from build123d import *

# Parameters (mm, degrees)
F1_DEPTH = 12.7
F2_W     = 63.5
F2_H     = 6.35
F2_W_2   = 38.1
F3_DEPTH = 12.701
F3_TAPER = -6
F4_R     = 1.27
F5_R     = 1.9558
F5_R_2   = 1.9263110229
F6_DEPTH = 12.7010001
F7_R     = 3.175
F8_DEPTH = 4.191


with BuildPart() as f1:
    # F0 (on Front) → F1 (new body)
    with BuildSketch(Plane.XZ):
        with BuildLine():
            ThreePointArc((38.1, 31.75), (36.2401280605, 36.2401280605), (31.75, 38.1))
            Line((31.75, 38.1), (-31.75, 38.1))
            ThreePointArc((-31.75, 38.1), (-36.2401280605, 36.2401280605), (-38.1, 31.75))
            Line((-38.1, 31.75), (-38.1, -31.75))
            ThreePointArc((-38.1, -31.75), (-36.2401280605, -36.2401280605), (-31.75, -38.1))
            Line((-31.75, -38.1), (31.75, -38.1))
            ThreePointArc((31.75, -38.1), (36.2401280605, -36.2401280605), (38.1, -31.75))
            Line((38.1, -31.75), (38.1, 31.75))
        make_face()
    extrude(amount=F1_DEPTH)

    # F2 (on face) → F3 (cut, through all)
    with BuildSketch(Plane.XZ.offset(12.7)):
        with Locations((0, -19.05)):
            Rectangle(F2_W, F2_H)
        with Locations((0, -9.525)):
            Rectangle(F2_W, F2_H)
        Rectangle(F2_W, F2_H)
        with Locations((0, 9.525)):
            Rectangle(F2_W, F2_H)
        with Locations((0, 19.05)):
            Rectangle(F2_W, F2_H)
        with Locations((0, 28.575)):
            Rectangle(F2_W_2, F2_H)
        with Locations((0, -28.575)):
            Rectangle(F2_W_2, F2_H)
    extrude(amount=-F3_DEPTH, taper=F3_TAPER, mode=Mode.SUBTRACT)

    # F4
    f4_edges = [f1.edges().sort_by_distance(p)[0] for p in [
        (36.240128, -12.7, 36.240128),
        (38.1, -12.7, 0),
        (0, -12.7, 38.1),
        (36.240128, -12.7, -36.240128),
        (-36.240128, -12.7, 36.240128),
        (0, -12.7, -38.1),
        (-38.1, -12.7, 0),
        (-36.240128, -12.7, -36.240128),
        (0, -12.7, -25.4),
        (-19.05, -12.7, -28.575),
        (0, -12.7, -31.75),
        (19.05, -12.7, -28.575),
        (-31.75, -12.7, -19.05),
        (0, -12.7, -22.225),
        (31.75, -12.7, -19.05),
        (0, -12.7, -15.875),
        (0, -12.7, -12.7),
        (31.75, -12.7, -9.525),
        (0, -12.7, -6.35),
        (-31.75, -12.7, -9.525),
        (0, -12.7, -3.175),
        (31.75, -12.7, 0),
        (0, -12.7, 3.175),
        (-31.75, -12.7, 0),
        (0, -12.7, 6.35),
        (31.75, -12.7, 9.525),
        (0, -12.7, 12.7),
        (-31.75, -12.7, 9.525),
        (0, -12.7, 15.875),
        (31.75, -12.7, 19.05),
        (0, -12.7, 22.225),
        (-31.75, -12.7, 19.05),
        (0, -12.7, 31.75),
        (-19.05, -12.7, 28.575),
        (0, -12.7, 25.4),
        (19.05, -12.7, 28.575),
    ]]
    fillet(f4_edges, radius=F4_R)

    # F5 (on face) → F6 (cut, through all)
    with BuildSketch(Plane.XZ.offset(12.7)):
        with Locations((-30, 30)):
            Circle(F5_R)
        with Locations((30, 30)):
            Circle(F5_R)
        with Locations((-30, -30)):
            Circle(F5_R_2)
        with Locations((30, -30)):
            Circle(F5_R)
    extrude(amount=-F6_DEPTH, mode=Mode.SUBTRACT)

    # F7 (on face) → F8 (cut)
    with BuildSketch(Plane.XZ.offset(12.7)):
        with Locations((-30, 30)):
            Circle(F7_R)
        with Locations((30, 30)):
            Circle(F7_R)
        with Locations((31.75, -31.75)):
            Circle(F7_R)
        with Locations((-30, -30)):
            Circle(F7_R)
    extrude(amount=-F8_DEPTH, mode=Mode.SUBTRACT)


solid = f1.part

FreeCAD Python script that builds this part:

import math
import FreeCAD as App
import Part
import Sketcher
from FreeCAD import Vector
Q = App.Units.Quantity


def edges_at(feature, points):
    """Names of the edges that pass closest to the given points."""
    edges = feature.Shape.Edges
    near = lambda p: min(range(len(edges)), key=lambda i: edges[i].distToShape(Part.Vertex(*p))[0])
    return sorted({f"Edge{near(p) + 1}" for p in points})


def add_polygon(sketch, points):
    """Adds a closed chain of lines whose ends are joined by coincident constraints."""
    first, n = sketch.GeometryCount, len(points)
    for a, b in zip(points, points[1:] + points[:1]):
        sketch.addGeometry(Part.LineSegment(App.Vector(*a, 0), App.Vector(*b, 0)), False)
    for i in range(n):
        sketch.addConstraint(Sketcher.Constraint("Coincident", first + i, 2, first + (i + 1) % n, 1))

doc = App.newDocument("Part")
body = doc.addObject("PartDesign::Body", "Body")

sketch1 = doc.addObject("Sketcher::SketchObject", "Sketch")
body.addObject(sketch1)
sketch1.AttachmentSupport = (doc.XZ_Plane, [""])
sketch1.MapMode = "FlatFace"
sketch1.addGeometry([
    Part.ArcOfCircle(Part.Circle(Vector(32, 32, 0), Vector(0, 0, 1), 6), math.radians(0), math.radians(90)),
    Part.LineSegment(Vector(32, 38, 0), Vector(-32, 38, 0)),
    Part.ArcOfCircle(Part.Circle(Vector(-32, 32, 0), Vector(0, 0, 1), 6), math.radians(90), math.radians(180)),
    Part.LineSegment(Vector(-38, 32, 0), Vector(-38, -32, 0)),
    Part.ArcOfCircle(Part.Circle(Vector(-32, -32, 0), Vector(0, 0, 1), 6), math.radians(180), math.radians(270)),
    Part.LineSegment(Vector(-32, -38, 0), Vector(32, -38, 0)),
    Part.ArcOfCircle(Part.Circle(Vector(32, -32, 0), Vector(0, 0, 1), 6), math.radians(-90), math.radians(0)),
    Part.LineSegment(Vector(38, -32, 0), Vector(38, 32, 0)),
], False)
sketch1.addConstraint([
    Sketcher.Constraint("Tangent", 0, 2, 1, 1),
    Sketcher.Constraint("Tangent", 1, 2, 2, 1),
    Sketcher.Constraint("Tangent", 2, 2, 3, 1),
    Sketcher.Constraint("Tangent", 3, 2, 4, 1),
    Sketcher.Constraint("Tangent", 4, 2, 5, 1),
    Sketcher.Constraint("Tangent", 5, 2, 6, 1),
    Sketcher.Constraint("Tangent", 6, 2, 7, 1),
    Sketcher.Constraint("Tangent", 7, 2, 0, 1),
    Sketcher.Constraint("Horizontal", 1),
    Sketcher.Constraint("Vertical", 3),
    Sketcher.Constraint("Horizontal", 5),
    Sketcher.Constraint("Vertical", 7),
    Sketcher.Constraint("Equal", 0, 2),
    Sketcher.Constraint("Equal", 2, 4),
    Sketcher.Constraint("Equal", 4, 6),
    Sketcher.Constraint("Symmetric", 0, 3, 4, 3, -1, 1),
    Sketcher.Constraint("Equal", 5, 3),
    Sketcher.Constraint("Radius", 0, Q("0.25 in")),
    Sketcher.Constraint("DistanceX", 1, 2, 1, 1, Q("2.5 in")),
])
pad1 = doc.addObject("PartDesign::Pad", "Pad")
body.addObject(pad1)
pad1.Profile = sketch1
pad1.Length = Q("0.5 in")

sketch2 = doc.addObject("Sketcher::SketchObject", "Sketch001")
body.addObject(sketch2)
sketch2.AttachmentSupport = (doc.XZ_Plane, [""])
sketch2.MapMode = "FlatFace"
sketch2.AttachmentOffset = App.Placement(Vector(0, 0, 0.5 * 25.4), App.Rotation())
add_polygon(sketch2, [(-32, -16), (-32, -22), (32, -22), (32, -16)])
add_polygon(sketch2, [(-32, -6), (-32, -13), (32, -13), (32, -6)])
add_polygon(sketch2, [(-32, 3), (-32, -3), (32, -3), (32, 3)])
add_polygon(sketch2, [(-32, 13), (-32, 6), (32, 6), (32, 13)])
add_polygon(sketch2, [(-32, 22), (-32, 16), (32, 16), (32, 22)])
add_polygon(sketch2, [(-19, 32), (-19, 25), (19, 25), (19, 32)])
add_polygon(sketch2, [(-19, -25), (-19, -32), (19, -32), (19, -25)])
sketch2.addConstraint([
    Sketcher.Constraint("Vertical", 0),
    Sketcher.Constraint("Horizontal", 1),
    Sketcher.Constraint("Vertical", 2),
    Sketcher.Constraint("Horizontal", 3),
    Sketcher.Constraint("Vertical", 4),
    Sketcher.Constraint("Horizontal", 5),
    Sketcher.Constraint("Vertical", 6),
    Sketcher.Constraint("Horizontal", 7),
    Sketcher.Constraint("Vertical", 8),
    Sketcher.Constraint("Horizontal", 9),
    Sketcher.Constraint("Vertical", 10),
    Sketcher.Constraint("Horizontal", 11),
    Sketcher.Constraint("Vertical", 12),
    Sketcher.Constraint("Horizontal", 13),
    Sketcher.Constraint("Vertical", 14),
    Sketcher.Constraint("Horizontal", 15),
    Sketcher.Constraint("Vertical", 16),
    Sketcher.Constraint("Horizontal", 17),
    Sketcher.Constraint("Vertical", 18),
    Sketcher.Constraint("Horizontal", 19),
    Sketcher.Constraint("Vertical", 20),
    Sketcher.Constraint("Horizontal", 21),
    Sketcher.Constraint("Vertical", 22),
    Sketcher.Constraint("Horizontal", 23),
    Sketcher.Constraint("Vertical", 24),
    Sketcher.Constraint("Horizontal", 25),
    Sketcher.Constraint("Vertical", 26),
    Sketcher.Constraint("Horizontal", 27),
    Sketcher.Constraint("Symmetric", 8, 2, 10, 2, -1, 1),
    Sketcher.Constraint("Symmetric", 6, 2, 12, 2, -1, 1),
    Sketcher.Constraint("Symmetric", 4, 2, 14, 2, -1, 1),
    Sketcher.Constraint("Symmetric", 2, 2, 16, 2, -1, 1),
    Sketcher.Constraint("Symmetric", 0, 2, 18, 2, -1, 1),
    Sketcher.Constraint("Symmetric", 22, 2, 24, 2, -1, 1),
    Sketcher.Constraint("Symmetric", 20, 2, 26, 2, -1, 1),
    Sketcher.Constraint("Vertical", 3, 2, 4, 2),
    Sketcher.Constraint("Vertical", 2, 2, 5, 2),
    Sketcher.Constraint("Vertical", 7, 2, 8, 2),
    Sketcher.Constraint("Vertical", 6, 2, 9, 2),
    Sketcher.Constraint("Vertical", 23, 2, 24, 2),
    Sketcher.Constraint("Equal", 2, 4),
    Sketcher.Constraint("Equal", 6, 8),
    Sketcher.Constraint("Equal", 18, 20),
    Sketcher.Constraint("DistanceX", 1, 1, 1, 2, Q("2.5 in")),
    Sketcher.Constraint("DistanceX", 21, 1, 21, 2, Q("1.5 in")),
    Sketcher.Constraint("DistanceY", -1, 1, 20, 2, Q("1 in")),
    Sketcher.Constraint("DistanceY", 1, 2, 10, 2, Q("1 in")),
    Sketcher.Constraint("DistanceY", 5, 2, 14, 2, Q("1 in")),
    Sketcher.Constraint("DistanceY", 13, 2, 22, 2, Q("1 in")),
])
pocket1 = doc.addObject("PartDesign::Pocket", "Pocket")
body.addObject(pocket1)
pocket1.Profile = sketch2
pocket1.Length = 12.701
pocket1.TaperAngle = 6
doc.recompute()

fillet = doc.addObject("PartDesign::Fillet", "Fillet")
body.addObject(fillet)
fillet.Base = (pocket1, edges_at(pocket1, [
    (36.24, -12.7, 36.24),
    (38.1, -12.7, 0),
    (0, -12.7, 38.1),
    (36.24, -12.7, -36.24),
    (-36.24, -12.7, 36.24),
    (0, -12.7, -38.1),
    (-38.1, -12.7, 0),
    (-36.24, -12.7, -36.24),
    (0, -12.7, -25.4),
    (-19.05, -12.7, -28.575),
    (0, -12.7, -31.75),
    (19.05, -12.7, -28.575),
    (-31.75, -12.7, -19.05),
    (0, -12.7, -22.225),
    (31.75, -12.7, -19.05),
    (0, -12.7, -15.875),
    (0, -12.7, -12.7),
    (31.75, -12.7, -9.525),
    (0, -12.7, -6.35),
    (-31.75, -12.7, -9.525),
    (0, -12.7, -3.175),
    (31.75, -12.7, 0),
    (0, -12.7, 3.175),
    (-31.75, -12.7, 0),
    (0, -12.7, 6.35),
    (31.75, -12.7, 9.525),
    (0, -12.7, 12.7),
    (-31.75, -12.7, 9.525),
    (0, -12.7, 15.875),
    (31.75, -12.7, 19.05),
    (0, -12.7, 22.225),
    (-31.75, -12.7, 19.05),
    (0, -12.7, 31.75),
    (-19.05, -12.7, 28.575),
    (0, -12.7, 25.4),
    (19.05, -12.7, 28.575),
]))
fillet.Radius = Q("0.05 in")

sketch3 = doc.addObject("Sketcher::SketchObject", "Sketch002")
body.addObject(sketch3)
sketch3.AttachmentSupport = (doc.XZ_Plane, [""])
sketch3.MapMode = "FlatFace"
sketch3.AttachmentOffset = App.Placement(Vector(0, 0, 0.5 * 25.4), App.Rotation())
sketch3.addGeometry([
    Part.Circle(Vector(-30, 30, 0), Vector(0, 0, 1), 2),
    Part.Circle(Vector(30, 30, 0), Vector(0, 0, 1), 2),
    Part.Circle(Vector(-30, -30, 0), Vector(0, 0, 1), 1.9),
    Part.Circle(Vector(30, -30, 0), Vector(0, 0, 1), 2),
], False)
sketch3.addConstraint([
    Sketcher.Constraint("Equal", 0, 1),
    Sketcher.Constraint("Equal", 1, 3),
    Sketcher.Constraint("Symmetric", 1, 3, 2, 3, -1, 1),
    Sketcher.Constraint("Symmetric", 0, 3, 3, 3, -1, 1),
    Sketcher.Constraint("Symmetric", 0, 3, 1, 3, -2),
    Sketcher.Constraint("Diameter", 0, Q("0.154 in")),
    Sketcher.Constraint("Diameter", 2, 3.852622),
    Sketcher.Constraint("DistanceX", 0, 3, -1, 1, 30.0),
    Sketcher.Constraint("DistanceY", -1, 1, 0, 3, 30.0),
])
pocket2 = doc.addObject("PartDesign::Pocket", "Pocket001")
body.addObject(pocket2)
pocket2.Profile = sketch3
pocket2.Type = "ThroughAll"

sketch4 = doc.addObject("Sketcher::SketchObject", "Sketch003")
body.addObject(sketch4)
sketch4.AttachmentSupport = (doc.XZ_Plane, [""])
sketch4.MapMode = "FlatFace"
sketch4.AttachmentOffset = App.Placement(Vector(0, 0, 0.5 * 25.4), App.Rotation())
sketch4.addGeometry([
    Part.Circle(Vector(-30, 30, 0), Vector(0, 0, 1), 3.2),
    Part.Circle(Vector(30, 30, 0), Vector(0, 0, 1), 3.2),
    Part.Circle(Vector(31.8, -31.8, 0), Vector(0, 0, 1), 3.2),
    Part.Circle(Vector(-30, -30, 0), Vector(0, 0, 1), 3.2),
], False)
sketch4.addConstraint([
    Sketcher.Constraint("Equal", 0, 1),
    Sketcher.Constraint("Equal", 1, 2),
    Sketcher.Constraint("Equal", 2, 3),
    Sketcher.Constraint("Symmetric", 1, 3, 3, 3, -1, 1),
    Sketcher.Constraint("Symmetric", 0, 3, 1, 3, -2),
    Sketcher.Constraint("Diameter", 0, Q("0.25 in")),
    Sketcher.Constraint("DistanceX", -1, 1, 2, 3, Q("1.25 in")),
    Sketcher.Constraint("DistanceY", 2, 3, -1, 1, Q("1.25 in")),
    Sketcher.Constraint("DistanceX", 0, 3, -1, 1, 30.0),
    Sketcher.Constraint("DistanceY", -1, 1, 0, 3, 30.0),
])
pocket3 = doc.addObject("PartDesign::Pocket", "Pocket002")
body.addObject(pocket3)
pocket3.Profile = sketch4
pocket3.Length = Q("0.165 in")

doc.recompute()
